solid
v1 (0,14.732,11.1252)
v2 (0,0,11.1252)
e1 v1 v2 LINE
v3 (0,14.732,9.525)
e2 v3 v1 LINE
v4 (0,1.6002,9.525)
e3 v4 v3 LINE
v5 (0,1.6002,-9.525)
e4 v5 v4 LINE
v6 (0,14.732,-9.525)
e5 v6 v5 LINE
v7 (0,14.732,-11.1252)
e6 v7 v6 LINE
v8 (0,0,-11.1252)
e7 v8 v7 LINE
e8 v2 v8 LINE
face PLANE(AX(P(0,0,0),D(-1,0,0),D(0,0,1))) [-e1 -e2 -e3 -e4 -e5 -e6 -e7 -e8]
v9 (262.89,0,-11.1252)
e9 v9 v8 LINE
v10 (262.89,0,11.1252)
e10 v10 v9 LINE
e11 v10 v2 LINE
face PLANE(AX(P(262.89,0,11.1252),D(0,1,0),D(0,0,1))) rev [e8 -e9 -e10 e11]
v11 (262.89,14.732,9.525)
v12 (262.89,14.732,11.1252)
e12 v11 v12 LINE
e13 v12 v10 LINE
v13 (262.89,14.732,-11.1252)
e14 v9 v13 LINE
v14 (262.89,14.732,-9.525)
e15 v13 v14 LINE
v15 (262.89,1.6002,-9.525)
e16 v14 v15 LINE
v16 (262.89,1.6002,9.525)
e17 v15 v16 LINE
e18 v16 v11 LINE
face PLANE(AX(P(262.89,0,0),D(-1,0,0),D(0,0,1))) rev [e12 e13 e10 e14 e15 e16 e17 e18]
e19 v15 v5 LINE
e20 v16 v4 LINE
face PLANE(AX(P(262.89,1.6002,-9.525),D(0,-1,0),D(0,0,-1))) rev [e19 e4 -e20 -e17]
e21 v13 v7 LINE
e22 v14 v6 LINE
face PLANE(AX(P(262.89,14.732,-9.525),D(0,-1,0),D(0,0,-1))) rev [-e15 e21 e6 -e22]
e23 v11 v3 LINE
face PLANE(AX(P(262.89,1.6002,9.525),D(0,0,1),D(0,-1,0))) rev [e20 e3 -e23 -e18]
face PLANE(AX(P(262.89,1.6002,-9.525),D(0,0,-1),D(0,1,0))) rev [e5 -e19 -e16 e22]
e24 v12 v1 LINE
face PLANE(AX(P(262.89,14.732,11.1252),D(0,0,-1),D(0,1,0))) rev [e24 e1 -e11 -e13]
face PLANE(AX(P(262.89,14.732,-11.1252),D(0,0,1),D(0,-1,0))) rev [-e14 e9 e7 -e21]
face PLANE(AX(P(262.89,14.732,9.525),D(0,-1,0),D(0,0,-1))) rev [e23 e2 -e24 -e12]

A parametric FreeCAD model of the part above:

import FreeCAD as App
import Part
import Sketcher

V = App.Vector
Q = App.Units.Quantity

doc = App.newDocument("Part")
body = doc.addObject("PartDesign::Body", "Body")

sketch1 = doc.addObject("Sketcher::SketchObject", "Sketch")
body.addObject(sketch1)
sketch1.AttachmentSupport = (doc.YZ_Plane, [""])
sketch1.MapMode = "FlatFace"
sketch1.addGeometry([
    Part.LineSegment(V(1.6, -9.5, 0), V(1.6, 9.5, 0)),
    Part.LineSegment(V(1.6, 9.5, 0), V(14.7, 9.5, 0)),
    Part.LineSegment(V(14.7, 9.5, 0), V(14.7, 11.1, 0)),
    Part.LineSegment(V(14.7, 11.1, 0), V(0, 11.1, 0)),
    Part.LineSegment(V(0, 11.1, 0), V(0, -11.1, 0)),
    Part.LineSegment(V(0, -11.1, 0), V(14.7, -11.1, 0)),
    Part.LineSegment(V(14.7, -11.1, 0), V(14.7, -9.5, 0)),
    Part.LineSegment(V(14.7, -9.5, 0), V(1.6, -9.5, 0)),
], False)
sketch1.addConstraint([
    Sketcher.Constraint("Coincident", 0, 2, 1, 1),
    Sketcher.Constraint("Coincident", 1, 2, 2, 1),
    Sketcher.Constraint("Coincident", 2, 2, 3, 1),
    Sketcher.Constraint("Coincident", 3, 2, 4, 1),
    Sketcher.Constraint("Coincident", 4, 2, 5, 1),
    Sketcher.Constraint("Coincident", 5, 2, 6, 1),
    Sketcher.Constraint("Coincident", 6, 2, 7, 1),
    Sketcher.Constraint("Coincident", 7, 2, 0, 1),
    Sketcher.Constraint("Vertical", 0),
    Sketcher.Constraint("Horizontal", 1),
    Sketcher.Constraint("Vertical", 2),
    Sketcher.Constraint("Horizontal", 3),
    Sketcher.Constraint("Vertical", 4),
    Sketcher.Constraint("Horizontal", 5),
    Sketcher.Constraint("Vertical", 6),
    Sketcher.Constraint("Horizontal", 7),
    Sketcher.Constraint("Symmetric", 3, 2, 4, 2, -1, 1),
    Sketcher.Constraint("Symmetric", 1, 2, 6, 2, -1),
    Sketcher.Constraint("DistanceX", 3, 2, 3, 1, Q("0.58 in")),
    Sketcher.Constraint("DistanceY", 0, 1, 0, 2, Q("0.75 in")),
    Sketcher.Constraint("DistanceX", 1, 1, 1, 2, Q("0.517 in")),
    Sketcher.Constraint("DistanceY", 2, 1, 2, 2, Q("0.063 in")),
])
pad1 = doc.addObject("PartDesign::Pad", "Pad")
body.addObject(pad1)
pad1.Profile = sketch1
pad1.Length = Q("10.35 in")

doc.recompute()
